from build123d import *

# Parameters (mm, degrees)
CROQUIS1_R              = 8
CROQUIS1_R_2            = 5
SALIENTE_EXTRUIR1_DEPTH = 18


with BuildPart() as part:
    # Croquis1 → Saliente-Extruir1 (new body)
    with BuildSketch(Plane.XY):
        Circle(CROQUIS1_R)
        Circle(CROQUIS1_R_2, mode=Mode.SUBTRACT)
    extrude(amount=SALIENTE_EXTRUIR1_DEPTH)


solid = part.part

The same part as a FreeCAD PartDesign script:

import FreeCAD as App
import Part
import Sketcher
from FreeCAD import Vector
Q = App.Units.Quantity

doc = App.newDocument("Part")
body = doc.addObject("PartDesign::Body", "Body")

sketch1 = body.newObject("Sketcher::SketchObject", "Sketch")
sketch1.AttachmentSupport = (doc.getObject("XY_Plane"), [""])
sketch1.MapMode = "FlatFace"
sketch1.addGeometry(Part.Circle(Vector(0, 0, 0), Vector(0, 0, 1), 8), False)
sketch1.addGeometry(Part.Circle(Vector(0, 0, 0), Vector(0, 0, 1), 5), False)
sketch1.addConstraint(Sketcher.Constraint("Coincident", 0, 3, -1, 1))
sketch1.addConstraint(Sketcher.Constraint("Coincident", 1, 3, -1, 1))
sketch1.addConstraint(Sketcher.Constraint("Diameter", 0, Q("16 mm")))
sketch1.addConstraint(Sketcher.Constraint("Diameter", 1, Q("10 mm")))
pad1 = body.newObject("PartDesign::Pad", "Pad")
pad1.Profile = sketch1
pad1.Length = 18

doc.recompute()
